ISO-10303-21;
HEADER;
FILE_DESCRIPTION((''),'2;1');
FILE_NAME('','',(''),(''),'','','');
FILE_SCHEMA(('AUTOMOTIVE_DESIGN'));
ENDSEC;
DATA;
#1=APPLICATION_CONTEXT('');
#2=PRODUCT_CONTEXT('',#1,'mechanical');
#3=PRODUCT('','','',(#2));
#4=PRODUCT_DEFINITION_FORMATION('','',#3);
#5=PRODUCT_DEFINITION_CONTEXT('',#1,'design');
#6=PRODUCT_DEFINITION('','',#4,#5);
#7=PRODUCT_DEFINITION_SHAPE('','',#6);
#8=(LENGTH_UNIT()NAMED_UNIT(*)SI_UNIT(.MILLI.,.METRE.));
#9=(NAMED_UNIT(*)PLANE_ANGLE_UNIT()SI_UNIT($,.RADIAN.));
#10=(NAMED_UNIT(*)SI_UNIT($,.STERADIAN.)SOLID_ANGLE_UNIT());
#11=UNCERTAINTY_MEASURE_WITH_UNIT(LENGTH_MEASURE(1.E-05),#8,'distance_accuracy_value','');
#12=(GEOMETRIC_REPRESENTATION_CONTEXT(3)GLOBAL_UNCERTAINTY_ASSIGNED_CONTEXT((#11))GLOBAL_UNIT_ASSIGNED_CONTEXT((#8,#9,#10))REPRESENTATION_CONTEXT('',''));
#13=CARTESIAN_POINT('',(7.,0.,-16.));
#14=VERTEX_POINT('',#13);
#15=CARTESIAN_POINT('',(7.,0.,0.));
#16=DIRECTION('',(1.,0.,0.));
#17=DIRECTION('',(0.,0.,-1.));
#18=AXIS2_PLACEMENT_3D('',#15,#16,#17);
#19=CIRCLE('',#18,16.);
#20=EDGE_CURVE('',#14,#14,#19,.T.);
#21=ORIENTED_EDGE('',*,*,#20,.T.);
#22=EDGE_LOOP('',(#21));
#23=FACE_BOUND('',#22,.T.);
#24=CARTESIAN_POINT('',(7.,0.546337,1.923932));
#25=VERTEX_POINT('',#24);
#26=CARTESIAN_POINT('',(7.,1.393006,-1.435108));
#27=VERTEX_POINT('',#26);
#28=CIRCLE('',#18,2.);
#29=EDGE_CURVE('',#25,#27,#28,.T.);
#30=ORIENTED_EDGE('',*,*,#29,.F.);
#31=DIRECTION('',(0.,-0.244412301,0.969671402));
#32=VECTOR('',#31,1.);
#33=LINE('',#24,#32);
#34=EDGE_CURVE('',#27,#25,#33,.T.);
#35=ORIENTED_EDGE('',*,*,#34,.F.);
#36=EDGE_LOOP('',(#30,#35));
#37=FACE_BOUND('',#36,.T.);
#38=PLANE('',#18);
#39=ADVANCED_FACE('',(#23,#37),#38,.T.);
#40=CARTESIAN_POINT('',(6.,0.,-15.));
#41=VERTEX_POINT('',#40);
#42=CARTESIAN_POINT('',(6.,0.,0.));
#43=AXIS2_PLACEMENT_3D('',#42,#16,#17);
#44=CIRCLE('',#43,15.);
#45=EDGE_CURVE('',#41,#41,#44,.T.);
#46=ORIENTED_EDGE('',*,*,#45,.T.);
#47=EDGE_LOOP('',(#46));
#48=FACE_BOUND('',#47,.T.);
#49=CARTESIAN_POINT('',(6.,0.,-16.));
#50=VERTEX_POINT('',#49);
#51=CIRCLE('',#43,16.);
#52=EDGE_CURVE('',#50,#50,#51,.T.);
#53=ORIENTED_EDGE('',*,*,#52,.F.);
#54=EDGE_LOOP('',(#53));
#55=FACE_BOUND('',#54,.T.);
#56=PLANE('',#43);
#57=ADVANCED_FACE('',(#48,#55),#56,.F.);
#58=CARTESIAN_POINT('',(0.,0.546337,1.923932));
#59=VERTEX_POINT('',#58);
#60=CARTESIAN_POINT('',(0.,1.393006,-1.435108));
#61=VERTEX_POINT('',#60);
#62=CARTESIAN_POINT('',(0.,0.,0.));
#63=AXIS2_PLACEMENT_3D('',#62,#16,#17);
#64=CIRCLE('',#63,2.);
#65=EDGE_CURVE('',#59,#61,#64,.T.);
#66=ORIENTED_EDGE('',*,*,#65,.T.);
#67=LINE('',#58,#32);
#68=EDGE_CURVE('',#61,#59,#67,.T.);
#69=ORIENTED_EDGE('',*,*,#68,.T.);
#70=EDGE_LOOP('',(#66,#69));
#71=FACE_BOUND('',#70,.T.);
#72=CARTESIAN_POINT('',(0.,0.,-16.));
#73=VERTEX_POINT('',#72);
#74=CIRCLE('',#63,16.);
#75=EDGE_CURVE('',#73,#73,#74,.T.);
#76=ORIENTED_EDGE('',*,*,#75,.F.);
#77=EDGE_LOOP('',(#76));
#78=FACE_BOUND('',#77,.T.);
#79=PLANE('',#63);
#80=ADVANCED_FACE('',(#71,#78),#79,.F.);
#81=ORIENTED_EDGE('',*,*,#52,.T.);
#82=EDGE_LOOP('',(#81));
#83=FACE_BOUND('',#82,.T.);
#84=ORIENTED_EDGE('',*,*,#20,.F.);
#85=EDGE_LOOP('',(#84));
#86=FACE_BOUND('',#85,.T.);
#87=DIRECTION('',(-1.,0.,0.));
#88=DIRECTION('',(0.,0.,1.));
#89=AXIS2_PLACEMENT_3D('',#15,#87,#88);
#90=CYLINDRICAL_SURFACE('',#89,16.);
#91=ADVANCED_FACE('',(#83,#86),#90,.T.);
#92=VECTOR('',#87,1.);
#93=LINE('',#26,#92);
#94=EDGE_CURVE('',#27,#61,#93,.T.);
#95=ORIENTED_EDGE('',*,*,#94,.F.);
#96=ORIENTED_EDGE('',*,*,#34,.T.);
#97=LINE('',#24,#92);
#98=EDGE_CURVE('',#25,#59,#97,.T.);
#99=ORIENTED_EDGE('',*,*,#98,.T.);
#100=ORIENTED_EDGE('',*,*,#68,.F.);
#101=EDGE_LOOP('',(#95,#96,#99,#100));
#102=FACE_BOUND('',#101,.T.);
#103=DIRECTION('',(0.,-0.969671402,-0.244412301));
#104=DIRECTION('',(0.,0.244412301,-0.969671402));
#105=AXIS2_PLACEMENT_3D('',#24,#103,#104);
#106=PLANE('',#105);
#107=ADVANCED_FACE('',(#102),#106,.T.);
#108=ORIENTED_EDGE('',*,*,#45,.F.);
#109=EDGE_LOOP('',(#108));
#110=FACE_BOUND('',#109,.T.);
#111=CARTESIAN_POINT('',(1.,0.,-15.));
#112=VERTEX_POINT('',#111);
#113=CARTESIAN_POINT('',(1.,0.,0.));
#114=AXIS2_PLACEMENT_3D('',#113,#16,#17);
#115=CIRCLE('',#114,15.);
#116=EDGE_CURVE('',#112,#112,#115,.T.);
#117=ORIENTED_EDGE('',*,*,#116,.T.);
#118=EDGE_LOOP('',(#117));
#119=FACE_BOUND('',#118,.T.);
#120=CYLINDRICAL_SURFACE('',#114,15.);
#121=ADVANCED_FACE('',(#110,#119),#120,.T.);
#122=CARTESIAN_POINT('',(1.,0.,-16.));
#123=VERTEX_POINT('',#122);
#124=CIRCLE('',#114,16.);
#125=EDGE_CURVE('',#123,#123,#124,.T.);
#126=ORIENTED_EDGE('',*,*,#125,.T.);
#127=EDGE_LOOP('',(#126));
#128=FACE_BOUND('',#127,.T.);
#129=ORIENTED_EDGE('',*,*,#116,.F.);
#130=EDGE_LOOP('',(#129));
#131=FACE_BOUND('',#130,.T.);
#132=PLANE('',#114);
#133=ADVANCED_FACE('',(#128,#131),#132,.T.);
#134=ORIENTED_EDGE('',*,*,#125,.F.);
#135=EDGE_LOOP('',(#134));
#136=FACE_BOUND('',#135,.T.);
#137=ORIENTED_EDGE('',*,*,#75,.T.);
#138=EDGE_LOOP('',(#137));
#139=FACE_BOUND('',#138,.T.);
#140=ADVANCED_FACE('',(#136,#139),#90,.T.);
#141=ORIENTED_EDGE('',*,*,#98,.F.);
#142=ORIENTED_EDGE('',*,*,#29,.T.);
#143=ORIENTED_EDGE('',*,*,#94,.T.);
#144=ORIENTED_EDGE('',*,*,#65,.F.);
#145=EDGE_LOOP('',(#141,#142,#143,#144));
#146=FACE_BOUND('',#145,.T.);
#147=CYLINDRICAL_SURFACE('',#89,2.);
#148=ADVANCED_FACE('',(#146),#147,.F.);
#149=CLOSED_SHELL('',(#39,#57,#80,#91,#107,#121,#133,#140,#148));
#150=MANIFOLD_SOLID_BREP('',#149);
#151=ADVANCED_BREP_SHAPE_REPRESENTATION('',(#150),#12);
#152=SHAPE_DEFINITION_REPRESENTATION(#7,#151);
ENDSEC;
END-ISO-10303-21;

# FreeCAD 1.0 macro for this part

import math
import FreeCAD as App
import Part
import Sketcher
Q = App.Units.Quantity

doc = App.newDocument("Part")
params = doc.addObject("Spreadsheet::Sheet", "Params")
for row, (alias, value) in enumerate([
    ("sketch1_diameter", "32 mm"),
    ("sketch1_radius", "2 mm"),
    ("pad1_length", "7 mm"),
    ("sketch2_diameter", "32 mm"),
    ("sketch2_diameter2", "30 mm"),
    ("pocket1_length", "5 mm"),
], start=1):
    params.set(f"A{row}", alias)
    params.set(f"B{row}", "=" + value)
    params.setAlias(f"B{row}", alias)

body = doc.addObject("PartDesign::Body", "Body")

# Sketch on YZ plane
sketch1 = doc.addObject("Sketcher::SketchObject", "Sketch")
body.addObject(sketch1)
sketch1.AttachmentSupport = (doc.YZ_Plane, [""])
sketch1.MapMode = "FlatFace"
sketch1.addGeometry(Part.Circle(App.Vector(0, 0, 0), App.Vector(0, 0, 1), 16), False)
sketch1.addGeometry(Part.ArcOfCircle(Part.Circle(App.Vector(0, 0, 0), App.Vector(0, 0, 1), 2), math.radians(74.147105), math.radians(314.147105)), False)
sketch1.addGeometry(Part.LineSegment(App.Vector(0.546337, 1.923932, 0), App.Vector(1.393006, -1.435108, 0)), False)
sketch1.addConstraint(Sketcher.Constraint("Coincident", 1, 1, 2, 1))
sketch1.addConstraint(Sketcher.Constraint("Coincident", 2, 2, 1, 2))
sketch1.addConstraint(Sketcher.Constraint("Coincident", 0, 3, -1, 1))
sketch1.addConstraint(Sketcher.Constraint("Coincident", 1, 3, -1, 1))
sketch1.addConstraint(Sketcher.Constraint("Diameter", 0, Q("32 mm")))
sketch1.addConstraint(Sketcher.Constraint("Radius", 1, Q("2 mm")))
sketch1.addConstraint(Sketcher.Constraint("Distance", 2, Q("3.464102 mm")))
sketch1.addConstraint(Sketcher.Constraint("DistanceX", 1, 1, 2, 2, Q("0.846669 mm")))
sketch1.setExpression("Constraints[4]", "Params.sketch1_diameter")
sketch1.setExpression("Constraints[5]", "Params.sketch1_radius")
pad1 = doc.addObject("PartDesign::Pad", "Pad")
body.addObject(pad1)
pad1.Profile = sketch1
pad1.setExpression("Length", "Params.pad1_length")

# Sketch on YZ plane
sketch2 = doc.addObject("Sketcher::SketchObject", "Sketch001")
body.addObject(sketch2)
sketch2.AttachmentSupport = (doc.YZ_Plane, [""])
sketch2.MapMode = "FlatFace"
sketch2.AttachmentOffset = App.Placement(App.Vector(0, 0, 1), App.Rotation())
sketch2.addGeometry(Part.Circle(App.Vector(0, 0, 0), App.Vector(0, 0, 1), 16), False)
sketch2.addGeometry(Part.Circle(App.Vector(0, 0, 0), App.Vector(0, 0, 1), 15), False)
sketch2.addConstraint(Sketcher.Constraint("Coincident", 0, 3, -1, 1))
sketch2.addConstraint(Sketcher.Constraint("Coincident", 1, 3, -1, 1))
sketch2.addConstraint(Sketcher.Constraint("Diameter", 0, Q("32 mm")))
sketch2.addConstraint(Sketcher.Constraint("Diameter", 1, Q("30 mm")))
sketch2.setExpression("Constraints[2]", "Params.sketch2_diameter")
sketch2.setExpression("Constraints[3]", "Params.sketch2_diameter2")
pocket1 = doc.addObject("PartDesign::Pocket", "Pocket")
body.addObject(pocket1)
pocket1.Profile = sketch2
pocket1.setExpression("Length", "Params.pocket1_length")
pocket1.Reversed = True

doc.recompute()
